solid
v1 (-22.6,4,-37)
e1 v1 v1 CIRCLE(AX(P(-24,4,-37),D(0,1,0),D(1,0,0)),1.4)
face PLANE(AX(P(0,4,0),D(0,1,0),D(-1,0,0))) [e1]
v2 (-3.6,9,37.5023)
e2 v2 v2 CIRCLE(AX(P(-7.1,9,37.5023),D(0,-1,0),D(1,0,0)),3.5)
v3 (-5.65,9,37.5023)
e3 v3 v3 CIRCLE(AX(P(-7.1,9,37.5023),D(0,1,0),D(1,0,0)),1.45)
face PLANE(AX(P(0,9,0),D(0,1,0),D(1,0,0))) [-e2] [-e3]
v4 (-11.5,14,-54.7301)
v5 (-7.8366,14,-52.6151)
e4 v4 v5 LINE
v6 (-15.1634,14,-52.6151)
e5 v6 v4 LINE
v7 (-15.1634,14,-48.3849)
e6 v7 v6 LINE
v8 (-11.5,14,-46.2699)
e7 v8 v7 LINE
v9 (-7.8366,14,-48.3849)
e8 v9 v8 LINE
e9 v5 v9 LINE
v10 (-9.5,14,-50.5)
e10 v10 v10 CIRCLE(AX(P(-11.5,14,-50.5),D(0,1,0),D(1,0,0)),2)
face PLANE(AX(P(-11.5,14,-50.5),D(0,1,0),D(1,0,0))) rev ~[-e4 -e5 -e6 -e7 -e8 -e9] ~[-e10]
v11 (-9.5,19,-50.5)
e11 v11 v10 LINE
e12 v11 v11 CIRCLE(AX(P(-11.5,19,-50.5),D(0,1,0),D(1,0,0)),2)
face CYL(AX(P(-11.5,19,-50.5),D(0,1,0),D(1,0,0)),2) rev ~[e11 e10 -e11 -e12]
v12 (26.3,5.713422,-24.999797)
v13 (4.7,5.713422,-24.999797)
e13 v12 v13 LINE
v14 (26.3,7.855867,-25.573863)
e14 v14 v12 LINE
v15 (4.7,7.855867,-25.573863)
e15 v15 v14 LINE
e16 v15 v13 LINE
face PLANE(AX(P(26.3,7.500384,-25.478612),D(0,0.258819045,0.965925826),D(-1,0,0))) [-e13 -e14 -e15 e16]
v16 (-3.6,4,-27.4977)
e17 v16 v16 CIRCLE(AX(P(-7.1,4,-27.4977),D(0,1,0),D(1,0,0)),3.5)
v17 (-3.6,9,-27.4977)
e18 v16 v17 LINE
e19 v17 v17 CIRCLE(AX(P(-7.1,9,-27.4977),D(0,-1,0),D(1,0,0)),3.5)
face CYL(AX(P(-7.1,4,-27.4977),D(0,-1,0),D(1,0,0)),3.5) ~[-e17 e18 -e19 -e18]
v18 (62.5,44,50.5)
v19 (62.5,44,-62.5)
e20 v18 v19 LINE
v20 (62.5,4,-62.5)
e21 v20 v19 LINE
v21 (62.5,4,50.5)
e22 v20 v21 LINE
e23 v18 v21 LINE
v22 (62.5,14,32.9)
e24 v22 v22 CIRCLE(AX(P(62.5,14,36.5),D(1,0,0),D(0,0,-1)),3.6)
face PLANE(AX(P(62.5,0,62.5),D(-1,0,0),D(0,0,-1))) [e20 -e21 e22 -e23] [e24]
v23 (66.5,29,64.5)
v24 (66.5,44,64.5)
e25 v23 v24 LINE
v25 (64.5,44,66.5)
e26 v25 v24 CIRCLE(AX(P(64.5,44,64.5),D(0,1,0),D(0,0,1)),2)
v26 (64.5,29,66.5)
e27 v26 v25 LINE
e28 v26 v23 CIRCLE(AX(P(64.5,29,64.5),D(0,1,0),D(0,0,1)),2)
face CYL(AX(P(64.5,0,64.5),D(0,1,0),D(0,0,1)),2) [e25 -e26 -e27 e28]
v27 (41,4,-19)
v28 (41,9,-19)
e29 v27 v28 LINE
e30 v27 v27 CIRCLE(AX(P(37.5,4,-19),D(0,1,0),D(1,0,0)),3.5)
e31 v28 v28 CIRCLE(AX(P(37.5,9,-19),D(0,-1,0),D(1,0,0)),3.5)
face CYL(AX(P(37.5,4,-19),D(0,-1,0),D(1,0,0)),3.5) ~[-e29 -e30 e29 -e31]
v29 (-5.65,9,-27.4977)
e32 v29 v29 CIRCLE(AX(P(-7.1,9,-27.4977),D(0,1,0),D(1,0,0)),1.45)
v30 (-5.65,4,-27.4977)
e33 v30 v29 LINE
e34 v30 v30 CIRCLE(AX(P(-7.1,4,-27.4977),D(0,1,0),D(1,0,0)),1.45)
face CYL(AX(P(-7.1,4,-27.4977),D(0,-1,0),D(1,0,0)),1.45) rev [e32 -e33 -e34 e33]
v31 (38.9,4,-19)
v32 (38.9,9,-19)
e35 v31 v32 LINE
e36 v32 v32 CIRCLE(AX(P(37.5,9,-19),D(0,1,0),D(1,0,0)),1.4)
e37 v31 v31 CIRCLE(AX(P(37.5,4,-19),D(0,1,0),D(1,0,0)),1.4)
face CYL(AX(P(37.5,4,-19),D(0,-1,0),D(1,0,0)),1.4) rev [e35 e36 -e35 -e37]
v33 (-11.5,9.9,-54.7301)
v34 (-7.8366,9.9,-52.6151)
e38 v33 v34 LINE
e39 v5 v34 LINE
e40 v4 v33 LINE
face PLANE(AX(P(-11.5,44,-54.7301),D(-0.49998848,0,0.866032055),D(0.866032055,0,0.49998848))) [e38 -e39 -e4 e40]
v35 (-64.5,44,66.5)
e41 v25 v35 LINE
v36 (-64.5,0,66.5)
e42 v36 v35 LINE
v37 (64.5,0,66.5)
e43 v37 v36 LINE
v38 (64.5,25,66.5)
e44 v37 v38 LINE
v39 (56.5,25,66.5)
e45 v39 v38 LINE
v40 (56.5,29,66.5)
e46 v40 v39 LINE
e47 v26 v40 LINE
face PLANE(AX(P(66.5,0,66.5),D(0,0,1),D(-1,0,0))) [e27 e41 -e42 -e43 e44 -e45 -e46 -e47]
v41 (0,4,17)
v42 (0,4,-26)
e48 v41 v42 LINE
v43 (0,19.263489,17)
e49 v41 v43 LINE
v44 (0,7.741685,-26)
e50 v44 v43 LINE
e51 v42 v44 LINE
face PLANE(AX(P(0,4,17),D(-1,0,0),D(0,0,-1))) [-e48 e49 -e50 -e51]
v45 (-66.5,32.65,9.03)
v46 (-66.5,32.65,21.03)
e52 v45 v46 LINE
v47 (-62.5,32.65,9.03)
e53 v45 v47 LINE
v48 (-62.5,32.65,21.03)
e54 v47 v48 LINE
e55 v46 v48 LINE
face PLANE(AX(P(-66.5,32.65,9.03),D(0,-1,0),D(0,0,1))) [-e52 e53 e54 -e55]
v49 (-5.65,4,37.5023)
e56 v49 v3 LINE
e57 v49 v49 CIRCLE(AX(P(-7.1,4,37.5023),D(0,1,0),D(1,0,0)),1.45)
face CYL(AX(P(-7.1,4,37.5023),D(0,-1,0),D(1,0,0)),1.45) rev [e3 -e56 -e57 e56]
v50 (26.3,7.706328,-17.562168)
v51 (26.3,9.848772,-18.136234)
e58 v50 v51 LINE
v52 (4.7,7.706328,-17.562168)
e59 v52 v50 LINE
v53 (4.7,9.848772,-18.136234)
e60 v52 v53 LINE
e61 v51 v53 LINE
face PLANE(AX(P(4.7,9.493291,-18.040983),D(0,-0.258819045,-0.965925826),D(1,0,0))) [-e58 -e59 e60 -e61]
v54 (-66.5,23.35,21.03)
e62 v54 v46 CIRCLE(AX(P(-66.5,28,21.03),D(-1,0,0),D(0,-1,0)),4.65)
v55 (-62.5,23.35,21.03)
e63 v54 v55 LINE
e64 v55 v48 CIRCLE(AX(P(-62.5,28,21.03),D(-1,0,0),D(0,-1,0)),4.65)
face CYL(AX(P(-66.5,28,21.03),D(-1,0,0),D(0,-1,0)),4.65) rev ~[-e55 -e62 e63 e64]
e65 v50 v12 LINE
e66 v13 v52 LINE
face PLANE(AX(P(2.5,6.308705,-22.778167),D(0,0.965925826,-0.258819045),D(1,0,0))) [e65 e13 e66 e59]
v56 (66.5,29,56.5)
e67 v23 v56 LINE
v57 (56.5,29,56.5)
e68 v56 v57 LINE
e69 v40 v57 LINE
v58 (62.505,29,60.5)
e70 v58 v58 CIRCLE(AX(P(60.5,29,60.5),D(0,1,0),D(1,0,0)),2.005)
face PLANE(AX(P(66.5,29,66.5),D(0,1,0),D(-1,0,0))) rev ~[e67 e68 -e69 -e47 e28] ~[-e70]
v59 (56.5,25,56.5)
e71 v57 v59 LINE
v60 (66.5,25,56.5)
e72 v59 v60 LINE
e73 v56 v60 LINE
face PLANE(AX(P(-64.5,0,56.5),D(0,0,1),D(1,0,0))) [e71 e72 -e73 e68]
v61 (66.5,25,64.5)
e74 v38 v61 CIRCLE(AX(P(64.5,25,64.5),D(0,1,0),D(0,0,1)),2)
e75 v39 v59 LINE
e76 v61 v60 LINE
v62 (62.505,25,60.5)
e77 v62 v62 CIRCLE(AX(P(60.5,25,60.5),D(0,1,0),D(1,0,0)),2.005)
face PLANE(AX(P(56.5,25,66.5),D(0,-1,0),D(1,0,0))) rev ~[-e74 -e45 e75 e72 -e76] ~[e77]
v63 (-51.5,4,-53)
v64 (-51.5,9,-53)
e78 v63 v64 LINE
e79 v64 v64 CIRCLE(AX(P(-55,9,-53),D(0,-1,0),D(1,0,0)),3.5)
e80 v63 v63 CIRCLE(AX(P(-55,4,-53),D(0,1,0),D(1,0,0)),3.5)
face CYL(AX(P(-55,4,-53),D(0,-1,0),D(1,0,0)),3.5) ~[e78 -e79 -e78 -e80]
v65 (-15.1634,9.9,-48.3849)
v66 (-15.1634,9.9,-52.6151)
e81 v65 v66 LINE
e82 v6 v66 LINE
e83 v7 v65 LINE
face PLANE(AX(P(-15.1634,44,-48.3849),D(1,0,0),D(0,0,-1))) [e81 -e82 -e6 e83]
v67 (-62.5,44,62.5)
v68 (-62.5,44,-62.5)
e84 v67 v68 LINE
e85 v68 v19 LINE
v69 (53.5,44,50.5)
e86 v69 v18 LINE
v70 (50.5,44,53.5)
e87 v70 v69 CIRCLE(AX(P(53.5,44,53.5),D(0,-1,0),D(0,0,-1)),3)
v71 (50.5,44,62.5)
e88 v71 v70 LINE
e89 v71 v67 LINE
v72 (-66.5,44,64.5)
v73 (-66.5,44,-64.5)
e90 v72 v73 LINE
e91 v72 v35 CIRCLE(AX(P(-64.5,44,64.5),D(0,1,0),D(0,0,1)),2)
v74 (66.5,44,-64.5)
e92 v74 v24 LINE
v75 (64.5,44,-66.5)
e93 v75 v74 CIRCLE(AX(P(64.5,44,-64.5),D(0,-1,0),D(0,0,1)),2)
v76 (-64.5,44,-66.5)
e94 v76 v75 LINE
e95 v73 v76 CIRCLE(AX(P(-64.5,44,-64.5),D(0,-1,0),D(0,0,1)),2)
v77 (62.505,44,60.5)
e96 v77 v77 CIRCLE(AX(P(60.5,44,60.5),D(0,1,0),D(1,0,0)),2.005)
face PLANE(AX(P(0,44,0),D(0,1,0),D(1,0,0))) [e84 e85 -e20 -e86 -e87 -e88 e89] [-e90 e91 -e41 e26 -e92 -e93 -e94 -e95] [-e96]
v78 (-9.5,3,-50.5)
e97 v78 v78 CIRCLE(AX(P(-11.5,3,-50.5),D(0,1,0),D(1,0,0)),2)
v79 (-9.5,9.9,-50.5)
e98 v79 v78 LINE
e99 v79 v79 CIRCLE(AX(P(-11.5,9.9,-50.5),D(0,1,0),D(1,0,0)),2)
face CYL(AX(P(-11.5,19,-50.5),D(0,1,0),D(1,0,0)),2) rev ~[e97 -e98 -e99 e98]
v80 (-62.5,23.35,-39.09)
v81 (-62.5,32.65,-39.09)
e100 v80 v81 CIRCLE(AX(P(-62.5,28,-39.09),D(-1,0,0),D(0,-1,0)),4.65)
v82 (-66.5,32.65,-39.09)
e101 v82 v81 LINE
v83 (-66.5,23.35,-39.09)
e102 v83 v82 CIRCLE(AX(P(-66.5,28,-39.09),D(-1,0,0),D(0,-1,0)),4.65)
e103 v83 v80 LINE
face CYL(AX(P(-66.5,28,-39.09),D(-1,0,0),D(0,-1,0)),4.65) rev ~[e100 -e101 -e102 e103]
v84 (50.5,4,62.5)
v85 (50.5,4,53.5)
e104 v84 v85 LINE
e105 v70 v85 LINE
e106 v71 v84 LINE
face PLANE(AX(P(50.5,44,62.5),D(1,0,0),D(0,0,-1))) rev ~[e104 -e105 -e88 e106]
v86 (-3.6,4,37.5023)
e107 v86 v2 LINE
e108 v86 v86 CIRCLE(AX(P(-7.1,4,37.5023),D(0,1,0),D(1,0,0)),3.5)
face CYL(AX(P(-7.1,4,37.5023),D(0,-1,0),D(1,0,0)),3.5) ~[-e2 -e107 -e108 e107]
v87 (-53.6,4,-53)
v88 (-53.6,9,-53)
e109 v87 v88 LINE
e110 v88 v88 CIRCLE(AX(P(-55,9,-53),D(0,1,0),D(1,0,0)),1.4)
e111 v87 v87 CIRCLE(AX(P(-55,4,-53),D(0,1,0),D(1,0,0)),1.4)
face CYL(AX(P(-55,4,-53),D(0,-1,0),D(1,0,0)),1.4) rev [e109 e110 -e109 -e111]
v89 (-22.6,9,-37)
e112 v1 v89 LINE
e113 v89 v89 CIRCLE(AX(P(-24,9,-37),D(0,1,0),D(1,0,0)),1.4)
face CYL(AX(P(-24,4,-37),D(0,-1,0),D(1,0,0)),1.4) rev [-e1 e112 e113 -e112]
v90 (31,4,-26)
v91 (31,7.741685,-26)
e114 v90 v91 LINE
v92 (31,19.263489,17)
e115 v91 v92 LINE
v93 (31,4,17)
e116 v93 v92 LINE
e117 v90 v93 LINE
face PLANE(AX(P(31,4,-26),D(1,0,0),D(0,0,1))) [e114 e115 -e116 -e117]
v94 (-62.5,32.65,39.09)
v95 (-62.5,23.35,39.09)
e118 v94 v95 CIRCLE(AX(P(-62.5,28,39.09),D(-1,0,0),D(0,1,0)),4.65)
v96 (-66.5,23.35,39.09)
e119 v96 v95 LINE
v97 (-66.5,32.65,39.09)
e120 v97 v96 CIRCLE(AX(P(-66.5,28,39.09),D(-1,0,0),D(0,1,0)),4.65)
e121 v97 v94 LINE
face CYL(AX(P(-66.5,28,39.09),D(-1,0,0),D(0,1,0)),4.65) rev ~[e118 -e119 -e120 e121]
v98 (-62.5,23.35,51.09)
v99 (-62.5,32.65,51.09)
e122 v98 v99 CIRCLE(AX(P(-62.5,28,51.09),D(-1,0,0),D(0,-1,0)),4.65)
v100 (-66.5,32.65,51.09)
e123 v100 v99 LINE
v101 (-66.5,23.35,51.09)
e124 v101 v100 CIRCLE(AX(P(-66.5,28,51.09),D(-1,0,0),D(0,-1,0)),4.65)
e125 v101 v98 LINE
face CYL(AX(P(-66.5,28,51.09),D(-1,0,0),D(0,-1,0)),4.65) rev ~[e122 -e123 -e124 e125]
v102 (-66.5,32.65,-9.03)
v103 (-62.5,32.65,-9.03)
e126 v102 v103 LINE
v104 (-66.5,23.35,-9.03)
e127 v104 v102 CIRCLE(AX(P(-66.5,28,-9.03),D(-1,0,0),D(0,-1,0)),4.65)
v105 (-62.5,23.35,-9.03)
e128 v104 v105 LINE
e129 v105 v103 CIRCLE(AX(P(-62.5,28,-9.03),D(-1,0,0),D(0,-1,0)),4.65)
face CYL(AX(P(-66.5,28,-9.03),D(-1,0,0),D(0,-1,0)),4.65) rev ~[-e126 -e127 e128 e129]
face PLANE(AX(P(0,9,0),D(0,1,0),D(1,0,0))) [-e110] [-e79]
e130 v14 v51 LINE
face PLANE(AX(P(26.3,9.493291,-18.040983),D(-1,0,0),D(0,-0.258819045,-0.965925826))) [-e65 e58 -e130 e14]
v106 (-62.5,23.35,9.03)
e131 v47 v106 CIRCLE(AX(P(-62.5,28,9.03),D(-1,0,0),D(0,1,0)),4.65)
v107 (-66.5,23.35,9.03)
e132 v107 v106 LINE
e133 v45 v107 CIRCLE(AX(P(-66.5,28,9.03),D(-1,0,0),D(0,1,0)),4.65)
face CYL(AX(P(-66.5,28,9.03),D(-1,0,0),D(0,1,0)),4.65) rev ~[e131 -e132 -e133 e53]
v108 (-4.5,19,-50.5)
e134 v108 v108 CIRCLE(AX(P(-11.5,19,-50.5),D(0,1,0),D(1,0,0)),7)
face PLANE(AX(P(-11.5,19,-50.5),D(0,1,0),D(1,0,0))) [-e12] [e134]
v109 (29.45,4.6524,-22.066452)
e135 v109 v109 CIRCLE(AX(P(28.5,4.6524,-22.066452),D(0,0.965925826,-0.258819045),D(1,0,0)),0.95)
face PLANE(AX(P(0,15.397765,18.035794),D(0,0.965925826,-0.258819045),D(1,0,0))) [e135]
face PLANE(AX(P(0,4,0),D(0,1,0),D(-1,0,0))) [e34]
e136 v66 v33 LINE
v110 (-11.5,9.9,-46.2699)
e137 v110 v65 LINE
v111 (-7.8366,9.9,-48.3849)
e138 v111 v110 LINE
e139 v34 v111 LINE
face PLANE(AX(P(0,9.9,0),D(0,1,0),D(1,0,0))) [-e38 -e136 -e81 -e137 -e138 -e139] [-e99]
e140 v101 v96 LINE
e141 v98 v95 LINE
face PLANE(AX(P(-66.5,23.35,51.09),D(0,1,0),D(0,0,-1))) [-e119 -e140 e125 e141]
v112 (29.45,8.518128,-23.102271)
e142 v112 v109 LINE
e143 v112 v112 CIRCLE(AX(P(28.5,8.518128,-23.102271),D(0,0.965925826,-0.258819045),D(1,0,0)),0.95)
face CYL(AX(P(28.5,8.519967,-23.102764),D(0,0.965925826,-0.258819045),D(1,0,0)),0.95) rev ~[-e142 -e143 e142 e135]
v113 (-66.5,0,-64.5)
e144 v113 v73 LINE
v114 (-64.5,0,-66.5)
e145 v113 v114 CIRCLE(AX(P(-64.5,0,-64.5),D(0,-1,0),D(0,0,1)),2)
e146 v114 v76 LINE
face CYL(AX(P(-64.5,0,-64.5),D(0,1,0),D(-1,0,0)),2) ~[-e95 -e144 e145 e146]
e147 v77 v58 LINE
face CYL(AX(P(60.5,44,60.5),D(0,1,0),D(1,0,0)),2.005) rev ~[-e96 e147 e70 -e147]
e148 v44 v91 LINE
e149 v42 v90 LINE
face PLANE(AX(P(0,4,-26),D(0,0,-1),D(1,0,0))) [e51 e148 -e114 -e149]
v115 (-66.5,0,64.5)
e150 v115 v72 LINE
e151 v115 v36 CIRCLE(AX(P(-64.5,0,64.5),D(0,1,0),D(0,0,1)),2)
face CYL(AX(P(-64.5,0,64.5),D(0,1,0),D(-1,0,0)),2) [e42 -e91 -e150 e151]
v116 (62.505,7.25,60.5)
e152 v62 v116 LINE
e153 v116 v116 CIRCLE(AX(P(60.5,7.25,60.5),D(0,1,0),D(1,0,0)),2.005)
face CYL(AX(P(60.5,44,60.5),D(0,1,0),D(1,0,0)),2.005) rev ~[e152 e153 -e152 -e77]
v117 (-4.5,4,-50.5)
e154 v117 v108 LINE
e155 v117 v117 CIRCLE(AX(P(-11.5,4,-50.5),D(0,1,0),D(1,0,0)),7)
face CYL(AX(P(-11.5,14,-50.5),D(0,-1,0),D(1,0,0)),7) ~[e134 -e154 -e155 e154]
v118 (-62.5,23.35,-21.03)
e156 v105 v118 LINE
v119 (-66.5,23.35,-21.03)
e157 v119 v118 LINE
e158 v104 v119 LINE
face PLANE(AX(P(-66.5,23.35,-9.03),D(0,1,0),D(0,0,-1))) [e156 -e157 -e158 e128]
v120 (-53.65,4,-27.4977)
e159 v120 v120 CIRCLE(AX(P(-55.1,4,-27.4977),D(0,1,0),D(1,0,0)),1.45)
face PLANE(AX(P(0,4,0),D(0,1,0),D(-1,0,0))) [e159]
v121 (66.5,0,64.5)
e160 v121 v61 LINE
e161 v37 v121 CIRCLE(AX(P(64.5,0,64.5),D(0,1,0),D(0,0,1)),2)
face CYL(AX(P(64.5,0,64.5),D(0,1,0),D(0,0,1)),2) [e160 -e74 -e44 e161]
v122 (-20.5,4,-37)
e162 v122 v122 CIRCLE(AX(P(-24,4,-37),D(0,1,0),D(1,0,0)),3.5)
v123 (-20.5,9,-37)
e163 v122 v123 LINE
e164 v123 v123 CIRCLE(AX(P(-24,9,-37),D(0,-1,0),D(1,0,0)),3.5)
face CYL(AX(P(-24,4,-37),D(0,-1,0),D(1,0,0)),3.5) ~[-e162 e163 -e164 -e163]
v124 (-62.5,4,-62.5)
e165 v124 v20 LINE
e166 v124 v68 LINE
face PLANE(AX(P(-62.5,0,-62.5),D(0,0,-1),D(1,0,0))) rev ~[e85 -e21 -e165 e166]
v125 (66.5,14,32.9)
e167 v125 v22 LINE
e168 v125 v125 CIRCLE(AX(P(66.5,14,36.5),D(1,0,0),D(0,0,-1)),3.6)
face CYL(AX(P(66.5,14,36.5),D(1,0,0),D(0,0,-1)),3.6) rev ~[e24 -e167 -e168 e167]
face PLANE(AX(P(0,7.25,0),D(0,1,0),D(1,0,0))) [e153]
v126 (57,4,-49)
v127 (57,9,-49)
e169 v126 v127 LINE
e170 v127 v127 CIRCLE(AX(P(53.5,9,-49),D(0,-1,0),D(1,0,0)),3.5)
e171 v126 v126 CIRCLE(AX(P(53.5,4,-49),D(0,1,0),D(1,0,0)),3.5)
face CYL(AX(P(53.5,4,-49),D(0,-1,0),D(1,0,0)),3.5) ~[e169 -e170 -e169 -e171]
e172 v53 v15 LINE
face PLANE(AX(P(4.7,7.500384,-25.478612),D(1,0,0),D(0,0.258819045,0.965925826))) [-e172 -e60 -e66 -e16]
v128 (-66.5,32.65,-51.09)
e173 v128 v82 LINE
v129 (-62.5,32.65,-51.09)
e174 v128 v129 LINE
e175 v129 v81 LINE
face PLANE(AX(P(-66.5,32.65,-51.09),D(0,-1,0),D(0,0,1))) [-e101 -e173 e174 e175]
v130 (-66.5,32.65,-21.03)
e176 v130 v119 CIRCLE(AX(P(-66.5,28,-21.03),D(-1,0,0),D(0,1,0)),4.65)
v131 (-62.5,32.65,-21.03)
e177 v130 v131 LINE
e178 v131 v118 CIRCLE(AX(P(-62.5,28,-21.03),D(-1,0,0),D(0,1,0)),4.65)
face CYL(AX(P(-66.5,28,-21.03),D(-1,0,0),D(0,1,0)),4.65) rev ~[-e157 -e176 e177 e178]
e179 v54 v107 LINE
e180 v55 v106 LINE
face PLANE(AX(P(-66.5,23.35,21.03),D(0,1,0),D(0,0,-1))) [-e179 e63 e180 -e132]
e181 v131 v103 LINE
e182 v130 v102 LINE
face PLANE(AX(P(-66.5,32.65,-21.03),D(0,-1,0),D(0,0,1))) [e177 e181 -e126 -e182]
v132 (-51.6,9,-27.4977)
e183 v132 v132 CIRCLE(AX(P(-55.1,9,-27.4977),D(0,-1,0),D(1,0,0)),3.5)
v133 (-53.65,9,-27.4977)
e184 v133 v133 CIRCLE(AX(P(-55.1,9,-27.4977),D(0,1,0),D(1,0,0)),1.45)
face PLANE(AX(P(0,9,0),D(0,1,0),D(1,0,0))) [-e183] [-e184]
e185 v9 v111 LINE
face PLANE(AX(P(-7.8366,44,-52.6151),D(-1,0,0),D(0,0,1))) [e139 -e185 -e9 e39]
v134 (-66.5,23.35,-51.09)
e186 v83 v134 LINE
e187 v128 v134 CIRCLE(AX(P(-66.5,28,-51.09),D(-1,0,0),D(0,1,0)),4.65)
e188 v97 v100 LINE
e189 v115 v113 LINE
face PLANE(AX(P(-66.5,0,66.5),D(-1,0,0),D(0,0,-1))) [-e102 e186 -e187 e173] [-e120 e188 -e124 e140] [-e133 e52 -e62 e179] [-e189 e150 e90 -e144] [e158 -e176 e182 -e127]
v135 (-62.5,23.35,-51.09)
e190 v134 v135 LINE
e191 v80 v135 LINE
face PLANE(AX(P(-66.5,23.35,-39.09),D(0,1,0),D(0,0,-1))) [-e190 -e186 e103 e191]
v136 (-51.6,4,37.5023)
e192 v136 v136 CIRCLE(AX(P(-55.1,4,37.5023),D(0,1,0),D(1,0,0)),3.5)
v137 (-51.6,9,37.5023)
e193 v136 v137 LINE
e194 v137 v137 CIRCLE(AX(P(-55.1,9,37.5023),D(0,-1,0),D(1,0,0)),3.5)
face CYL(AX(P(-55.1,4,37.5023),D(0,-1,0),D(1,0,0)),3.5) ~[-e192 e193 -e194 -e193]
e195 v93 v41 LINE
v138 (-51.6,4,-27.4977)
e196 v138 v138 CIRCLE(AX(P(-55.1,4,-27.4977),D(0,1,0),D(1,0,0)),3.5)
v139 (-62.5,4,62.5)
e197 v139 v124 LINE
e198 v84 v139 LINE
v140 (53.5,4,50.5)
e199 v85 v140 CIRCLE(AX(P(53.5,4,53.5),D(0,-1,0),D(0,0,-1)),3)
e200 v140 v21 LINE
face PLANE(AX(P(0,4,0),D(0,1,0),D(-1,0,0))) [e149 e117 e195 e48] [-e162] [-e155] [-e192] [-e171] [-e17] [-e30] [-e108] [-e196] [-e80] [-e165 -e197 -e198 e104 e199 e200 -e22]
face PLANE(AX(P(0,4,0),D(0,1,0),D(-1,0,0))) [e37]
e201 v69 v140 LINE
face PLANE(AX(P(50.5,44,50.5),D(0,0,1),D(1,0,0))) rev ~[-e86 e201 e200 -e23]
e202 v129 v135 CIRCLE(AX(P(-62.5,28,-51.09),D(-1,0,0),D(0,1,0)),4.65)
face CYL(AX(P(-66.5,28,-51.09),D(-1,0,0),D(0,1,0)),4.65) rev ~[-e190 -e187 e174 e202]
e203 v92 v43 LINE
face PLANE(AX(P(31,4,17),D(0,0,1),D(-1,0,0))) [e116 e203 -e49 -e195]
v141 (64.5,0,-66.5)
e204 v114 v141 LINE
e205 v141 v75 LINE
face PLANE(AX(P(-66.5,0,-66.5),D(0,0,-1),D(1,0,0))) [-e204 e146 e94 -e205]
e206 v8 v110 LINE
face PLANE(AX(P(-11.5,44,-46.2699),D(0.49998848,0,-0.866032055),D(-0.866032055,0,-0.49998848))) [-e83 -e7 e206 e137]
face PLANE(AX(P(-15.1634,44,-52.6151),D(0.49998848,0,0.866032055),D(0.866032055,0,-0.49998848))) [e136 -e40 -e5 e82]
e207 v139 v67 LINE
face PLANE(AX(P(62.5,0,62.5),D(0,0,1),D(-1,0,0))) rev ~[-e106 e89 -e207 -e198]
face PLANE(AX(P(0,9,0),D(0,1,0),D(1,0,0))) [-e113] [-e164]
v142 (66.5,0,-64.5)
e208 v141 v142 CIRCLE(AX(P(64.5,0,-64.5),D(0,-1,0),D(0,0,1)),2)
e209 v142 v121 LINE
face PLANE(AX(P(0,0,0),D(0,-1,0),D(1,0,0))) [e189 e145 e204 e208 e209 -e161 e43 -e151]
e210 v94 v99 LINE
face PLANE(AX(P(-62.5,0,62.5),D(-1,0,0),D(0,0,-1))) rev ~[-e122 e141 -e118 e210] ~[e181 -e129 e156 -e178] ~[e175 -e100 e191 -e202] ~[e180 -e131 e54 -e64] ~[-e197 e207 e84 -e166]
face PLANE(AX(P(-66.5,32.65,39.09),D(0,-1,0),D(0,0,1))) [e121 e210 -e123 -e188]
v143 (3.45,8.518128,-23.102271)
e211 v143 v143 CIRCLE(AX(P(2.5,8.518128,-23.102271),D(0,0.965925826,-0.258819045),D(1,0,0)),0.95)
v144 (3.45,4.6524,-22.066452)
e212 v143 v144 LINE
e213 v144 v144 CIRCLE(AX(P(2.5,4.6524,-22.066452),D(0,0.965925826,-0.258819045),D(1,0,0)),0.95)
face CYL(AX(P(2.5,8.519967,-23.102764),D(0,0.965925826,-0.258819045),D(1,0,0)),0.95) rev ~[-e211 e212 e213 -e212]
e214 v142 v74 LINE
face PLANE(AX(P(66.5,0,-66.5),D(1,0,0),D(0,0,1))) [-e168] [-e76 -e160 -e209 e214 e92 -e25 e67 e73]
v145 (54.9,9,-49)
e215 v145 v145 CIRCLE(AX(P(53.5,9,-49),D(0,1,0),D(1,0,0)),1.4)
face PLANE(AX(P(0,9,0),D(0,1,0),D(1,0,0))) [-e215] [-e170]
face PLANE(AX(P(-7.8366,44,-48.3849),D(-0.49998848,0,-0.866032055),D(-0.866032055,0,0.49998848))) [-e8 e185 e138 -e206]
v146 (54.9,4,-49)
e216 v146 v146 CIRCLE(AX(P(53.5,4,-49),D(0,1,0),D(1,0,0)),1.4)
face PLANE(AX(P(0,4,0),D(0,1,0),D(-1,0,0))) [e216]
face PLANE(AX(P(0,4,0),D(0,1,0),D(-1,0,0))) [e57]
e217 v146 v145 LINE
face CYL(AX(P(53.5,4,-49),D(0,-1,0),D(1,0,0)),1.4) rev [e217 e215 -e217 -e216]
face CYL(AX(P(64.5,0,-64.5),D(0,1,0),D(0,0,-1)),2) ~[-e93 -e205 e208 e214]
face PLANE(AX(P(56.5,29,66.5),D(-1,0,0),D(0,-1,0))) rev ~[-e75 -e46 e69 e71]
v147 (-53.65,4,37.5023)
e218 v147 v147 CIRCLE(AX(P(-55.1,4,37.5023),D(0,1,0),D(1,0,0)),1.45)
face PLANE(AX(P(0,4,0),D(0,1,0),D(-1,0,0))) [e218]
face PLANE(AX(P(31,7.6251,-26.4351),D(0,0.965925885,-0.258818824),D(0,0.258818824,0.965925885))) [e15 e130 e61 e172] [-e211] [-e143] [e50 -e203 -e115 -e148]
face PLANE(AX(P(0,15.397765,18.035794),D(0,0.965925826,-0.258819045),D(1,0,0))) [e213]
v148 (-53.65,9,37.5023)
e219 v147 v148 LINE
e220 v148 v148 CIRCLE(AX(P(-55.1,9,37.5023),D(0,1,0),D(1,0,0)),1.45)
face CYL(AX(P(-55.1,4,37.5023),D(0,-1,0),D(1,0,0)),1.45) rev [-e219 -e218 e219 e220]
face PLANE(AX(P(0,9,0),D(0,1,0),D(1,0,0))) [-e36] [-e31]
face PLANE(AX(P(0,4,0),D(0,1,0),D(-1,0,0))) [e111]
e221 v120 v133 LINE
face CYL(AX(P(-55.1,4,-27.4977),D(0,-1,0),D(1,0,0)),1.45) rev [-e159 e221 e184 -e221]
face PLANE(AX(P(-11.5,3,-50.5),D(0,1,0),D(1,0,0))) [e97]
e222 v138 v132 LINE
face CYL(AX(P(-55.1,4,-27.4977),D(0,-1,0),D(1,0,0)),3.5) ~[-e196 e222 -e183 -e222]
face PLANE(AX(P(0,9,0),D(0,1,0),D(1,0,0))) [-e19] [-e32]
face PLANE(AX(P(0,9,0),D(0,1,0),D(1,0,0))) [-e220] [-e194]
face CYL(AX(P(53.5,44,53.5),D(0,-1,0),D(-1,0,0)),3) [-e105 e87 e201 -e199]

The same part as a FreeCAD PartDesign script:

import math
import FreeCAD as App
import Part
import Sketcher
Q = App.Units.Quantity


def edges_at(feature, points):
    """Names of the edges that pass closest to the given points."""
    edges = feature.Shape.Edges
    near = lambda p: min(range(len(edges)), key=lambda i: edges[i].distToShape(Part.Vertex(*p))[0])
    return sorted({f"Edge{near(p) + 1}" for p in points})


def add_polygon(sketch, points):
    """Adds a closed chain of lines whose ends are joined by coincident constraints."""
    first, n = sketch.GeometryCount, len(points)
    for a, b in zip(points, points[1:] + points[:1]):
        sketch.addGeometry(Part.LineSegment(App.Vector(*a, 0), App.Vector(*b, 0)), False)
    for i in range(n):
        sketch.addConstraint(Sketcher.Constraint("Coincident", first + i, 2, first + (i + 1) % n, 1))

doc = App.newDocument("Part")
body = doc.addObject("PartDesign::Body", "Body")

# Sketch on XZ plane
sketch1 = body.newObject("Sketcher::SketchObject", "Sketch")
sketch1.AttachmentSupport = (doc.getObject("XZ_Plane"), [""])
sketch1.MapMode = "FlatFace"
add_polygon(sketch1, [(-62.5, 62.5), (62.5, 62.5), (62.5, -62.5), (-62.5, -62.5)])  # lines 0-3
sketch1.addConstraint([
    Sketcher.Constraint("Horizontal", 0),
    Sketcher.Constraint("Vertical", 1),
    Sketcher.Constraint("Horizontal", 2),
    Sketcher.Constraint("Vertical", 3),
    Sketcher.Constraint("Symmetric", 0, 2, 2, 2, -1, 1),
    Sketcher.Constraint("Equal", 2, 1),
    Sketcher.Constraint("DistanceX", 0, 1, 0, 2, 125.0),
])
pad1 = body.newObject("PartDesign::Pad", "Pad")
pad1.Profile = sketch1
pad1.Length = 4
pad1.Reversed = True

# Sketch on XZ plane
sketch2 = body.newObject("Sketcher::SketchObject", "Sketch001")
sketch2.AttachmentSupport = (doc.getObject("XZ_Plane"), [""])
sketch2.MapMode = "FlatFace"
sketch2.AttachmentOffset = App.Placement(App.Vector(0, 0, -4), App.Rotation())
sketch2.addGeometry([
    Part.Circle(App.Vector(-55, -53, 0), App.Vector(0, 0, 1), 3.5),  # 0
    Part.Circle(App.Vector(-55, -53, 0), App.Vector(0, 0, 1), 1.4),  # 1
    Part.Circle(App.Vector(-24, -37, 0), App.Vector(0, 0, 1), 3.5),  # 2
    Part.Circle(App.Vector(-24, -37, 0), App.Vector(0, 0, 1), 1.4),  # 3
    Part.Circle(App.Vector(-55.1, -27.4977, 0), App.Vector(0, 0, 1), 3.5),  # 4
    Part.Circle(App.Vector(-55.1, -27.4977, 0), App.Vector(0, 0, 1), 1.45),  # 5
    Part.Circle(App.Vector(-7.1, -27.4977, 0), App.Vector(0, 0, 1), 3.5),  # 6
    Part.Circle(App.Vector(-7.1, -27.4977, 0), App.Vector(0, 0, 1), 1.45),  # 7
    Part.Circle(App.Vector(-55.1, 37.5023, 0), App.Vector(0, 0, 1), 3.5),  # 8
    Part.Circle(App.Vector(-55.1, 37.5023, 0), App.Vector(0, 0, 1), 1.45),  # 9
    Part.Circle(App.Vector(-7.1, 37.5023, 0), App.Vector(0, 0, 1), 3.5),  # 10
    Part.Circle(App.Vector(-7.1, 37.5023, 0), App.Vector(0, 0, 1), 1.45),  # 11
    Part.Circle(App.Vector(53.5, -49, 0), App.Vector(0, 0, 1), 3.5),  # 12
    Part.Circle(App.Vector(53.5, -49, 0), App.Vector(0, 0, 1), 1.4),  # 13
    Part.Circle(App.Vector(37.5, -19, 0), App.Vector(0, 0, 1), 3.5),  # 14
    Part.Circle(App.Vector(37.5, -19, 0), App.Vector(0, 0, 1), 1.4),  # 15
], False)
sketch2.addConstraint([
    Sketcher.Constraint("Coincident", 1, 3, 0, 3),
    Sketcher.Constraint("Coincident", 3, 3, 2, 3),
    Sketcher.Constraint("Coincident", 5, 3, 4, 3),
    Sketcher.Constraint("Coincident", 7, 3, 6, 3),
    Sketcher.Constraint("Coincident", 9, 3, 8, 3),
    Sketcher.Constraint("Coincident", 11, 3, 10, 3),
    Sketcher.Constraint("Coincident", 13, 3, 12, 3),
    Sketcher.Constraint("Coincident", 15, 3, 14, 3),
    Sketcher.Constraint("Equal", 0, 2),
    Sketcher.Constraint("Equal", 1, 3),
    Sketcher.Constraint("Equal", 2, 4),
    Sketcher.Constraint("Equal", 4, 6),
    Sketcher.Constraint("Equal", 5, 7),
    Sketcher.Constraint("Equal", 6, 8),
    Sketcher.Constraint("Equal", 7, 9),
    Sketcher.Constraint("Equal", 8, 10),
    Sketcher.Constraint("Equal", 9, 11),
    Sketcher.Constraint("Equal", 10, 12),
    Sketcher.Constraint("Equal", 3, 13),
    Sketcher.Constraint("Equal", 12, 14),
    Sketcher.Constraint("Equal", 13, 15),
    Sketcher.Constraint("Horizontal", 5, 3, 6, 3),
    Sketcher.Constraint("Horizontal", 9, 3, 10, 3),
    Sketcher.Constraint("Vertical", 5, 3, 8, 3),
    Sketcher.Constraint("Vertical", 7, 3, 10, 3),
    Sketcher.Constraint("Diameter", 0, 7.0),
    Sketcher.Constraint("Diameter", 1, 2.8),
    Sketcher.Constraint("Diameter", 5, 2.9),
    Sketcher.Constraint("DistanceY", 0, 3, -1, 1, 53.0),
    Sketcher.Constraint("DistanceX", 4, 3, 6, 3, 48.0),
    Sketcher.Constraint("DistanceY", 4, 3, 8, 3, 65.0),
    Sketcher.Constraint("DistanceY", 12, 3, 2, 3, 12.0),
    Sketcher.Constraint("DistanceX", 0, 3, -1, 1, 55.0),
    Sketcher.Constraint("DistanceX", 2, 3, -1, 1, 24.0),
    Sketcher.Constraint("DistanceY", 2, 3, -1, 1, 37.0),
    Sketcher.Constraint("DistanceY", 14, 3, -1, 1, 19.0),
    Sketcher.Constraint("DistanceX", 14, 3, 12, 3, 16.0),
    Sketcher.Constraint("DistanceX", 4, 3, -1, 1, 55.1),
    Sketcher.Constraint("DistanceX", -1, 1, 12, 3, 53.5),
    Sketcher.Constraint("DistanceY", 4, 3, -1, 1, 27.4977),
])
pad2 = body.newObject("PartDesign::Pad", "Pad001")
pad2.Profile = sketch2
pad2.Length = 5
pad2.Reversed = True

# Sketch on XZ plane
sketch3 = body.newObject("Sketcher::SketchObject", "Sketch002")
sketch3.AttachmentSupport = (doc.getObject("XZ_Plane"), [""])
sketch3.MapMode = "FlatFace"
sketch3.AttachmentOffset = App.Placement(App.Vector(0, 0, -9), App.Rotation())
sketch3.addGeometry(Part.Circle(App.Vector(29.5, -45, 0), App.Vector(0, 0, 1), 1.45), False)
sketch3.addConstraint([
    Sketcher.Constraint("Diameter", 0, 2.9),
    Sketcher.Constraint("DistanceY", 0, 3, -1, 1, 45.0),
    Sketcher.Constraint("DistanceX", -1, 1, 0, 3, 29.5),
])
pocket1 = body.newObject("PartDesign::Pocket", "Pocket")
pocket1.Profile = sketch3
pocket1.Length = 5
pocket1.Reversed = True

# Sketch on XZ plane
sketch4 = body.newObject("Sketcher::SketchObject", "Sketch003")
sketch4.AttachmentSupport = (doc.getObject("XZ_Plane"), [""])
sketch4.MapMode = "FlatFace"
sketch4.AttachmentOffset = App.Placement(App.Vector(0, 0, -4), App.Rotation())
add_polygon(sketch4, [(31, -26), (0, -26), (0, 17), (31, 17)])  # lines 0-3
sketch4.addConstraint([
    Sketcher.Constraint("Horizontal", 0),
    Sketcher.Constraint("Vertical", 1),
    Sketcher.Constraint("Horizontal", 2),
    Sketcher.Constraint("Vertical", 3),
    Sketcher.Constraint("PointOnObject", 0, 2, -2),
    Sketcher.Constraint("DistanceY", 1, 1, 1, 2, 43.0),
    Sketcher.Constraint("DistanceX", 0, 2, 0, 1, 31.0),
    Sketcher.Constraint("DistanceY", 0, 2, -1, 1, 26.0),
])
pad3 = body.newObject("PartDesign::Pad", "Pad002")
pad3.Profile = sketch4
pad3.Length = 24
pad3.Reversed = True

# Sketch on YZ plane
sketch5 = body.newObject("Sketcher::SketchObject", "Sketch004")
sketch5.AttachmentSupport = (doc.getObject("YZ_Plane"), [""])
sketch5.MapMode = "FlatFace"
sketch5.AttachmentOffset = App.Placement(App.Vector(0, 0, 31), App.Rotation())
add_polygon(sketch5, [(29.6247, 55.6686), (7.6251, -26.4351), (31.2402, -26.4351)])  # lines 0-2
sketch5.addConstraint([
    Sketcher.Constraint("Horizontal", 1),
    Sketcher.Constraint("Distance", 0, 85.0),
    Sketcher.Constraint("Angle", 0, Q("-105 deg")),
    Sketcher.Constraint("DistanceX", 1, 1, 1, 2, 23.615),
    Sketcher.Constraint("DistanceX", -1, 1, 0, 2, 7.625),
    Sketcher.Constraint("DistanceY", 0, 2, -1, 1, 26.435),
])
pocket2 = body.newObject("PartDesign::Pocket", "Pocket001")
pocket2.Profile = sketch5
pocket2.Length = 31

# Sketch on an angled plane
sketch6 = body.newObject("Sketcher::SketchObject", "Sketch005")
sketch6.Placement = App.Placement(App.Vector(0, 19.2634, 17), App.Rotation(App.Vector(1, 0, 0), App.Vector(0, -0.258819045, -0.965925826), App.Vector(0, 0.965925826, -0.258819045), "ZXY"))
sketch6.addGeometry([
    Part.Circle(App.Vector(2.5, 41.5169, 0), App.Vector(0, 0, 1), 0.95),
    Part.Circle(App.Vector(28.5, 41.5169, 0), App.Vector(0, 0, 1), 0.95),
], False)
sketch6.addConstraint([
    Sketcher.Constraint("Equal", 0, 1),
    Sketcher.Constraint("Horizontal", 0, 3, 1, 3),
    Sketcher.Constraint("Diameter", 0, 1.9),
    Sketcher.Constraint("DistanceX", -1, 1, 0, 3, 2.5),
    Sketcher.Constraint("DistanceX", 0, 3, 1, 3, 26.0),
    Sketcher.Constraint("DistanceY", -1, 1, 0, 3, 41.517),
])
pocket3 = body.newObject("PartDesign::Pocket", "Pocket002")
pocket3.Profile = sketch6
pocket3.Length = 4

# Sketch on an angled plane
sketch7 = body.newObject("Sketcher::SketchObject", "Sketch006")
sketch7.Placement = App.Placement(App.Vector(2.5, 8.0976, -23.2575), App.Rotation(App.Vector(1, 0, 0), App.Vector(0, -0.258819045, -0.965925826), App.Vector(0, 0.965925826, -0.258819045), "ZXY"))
add_polygon(sketch7, [(2.2, 2.3), (2.2, -5.4), (23.8, -5.4), (23.8, 2.3)])  # lines 0-3
sketch7.addConstraint([
    Sketcher.Constraint("Vertical", 0),
    Sketcher.Constraint("Horizontal", 1),
    Sketcher.Constraint("Vertical", 2),
    Sketcher.Constraint("Horizontal", 3),
    Sketcher.Constraint("DistanceY", 0, 2, 0, 1, 7.7),
    Sketcher.Constraint("DistanceX", 1, 1, 1, 2, 21.6),
    Sketcher.Constraint("DistanceX", -1, 1, 0, 2, 2.2),
    Sketcher.Constraint("DistanceY", 0, 2, -1, 1, 5.4),
])
pocket4 = body.newObject("PartDesign::Pocket", "Pocket003")
pocket4.Profile = sketch7
pocket4.Length = 3.7
pocket4.Midplane = True

# Sketch on XZ plane
sketch8 = body.newObject("Sketcher::SketchObject", "Sketch007")
sketch8.AttachmentSupport = (doc.getObject("XZ_Plane"), [""])
sketch8.MapMode = "FlatFace"
add_polygon(sketch8, [(-66.5, 66.5), (-66.5, -66.5), (66.5, -66.5), (66.5, 66.5)])  # lines 0-3
add_polygon(sketch8, [(-62.5, 62.5), (62.5, 62.5), (62.5, -62.5), (-62.5, -62.5)])  # lines 4-7
sketch8.addConstraint([
    Sketcher.Constraint("Vertical", 0),
    Sketcher.Constraint("Horizontal", 1),
    Sketcher.Constraint("Vertical", 2),
    Sketcher.Constraint("Horizontal", 3),
    Sketcher.Constraint("Horizontal", 4),
    Sketcher.Constraint("Vertical", 5),
    Sketcher.Constraint("Horizontal", 6),
    Sketcher.Constraint("Vertical", 7),
    Sketcher.Constraint("Symmetric", 0, 2, 2, 2, -1, 1),
    Sketcher.Constraint("Symmetric", 4, 2, 6, 2, -1, 1),
    Sketcher.Constraint("Equal", 3, 0),
    Sketcher.Constraint("Equal", 6, 5),
    Sketcher.Constraint("DistanceX", 1, 1, 1, 2, 133.0),
    Sketcher.Constraint("DistanceX", 4, 1, 4, 2, 125.0),
])
pad4 = body.newObject("PartDesign::Pad", "Pad003")
pad4.Profile = sketch8
pad4.Length = 44
pad4.Reversed = True
doc.recompute()

fillet = body.newObject("PartDesign::Fillet", "Fillet")
fillet.Base = (pad4, edges_at(pad4, [
    (-66.5, 22, 66.5),
    (66.5, 22, 66.5),
    (66.5, 22, -66.5),
    (-66.5, 22, -66.5),
]))
fillet.Radius = 2

# Sketch on YZ plane
sketch9 = body.newObject("Sketcher::SketchObject", "Sketch008")
sketch9.AttachmentSupport = (doc.getObject("YZ_Plane"), [""])
sketch9.MapMode = "FlatFace"
sketch9.AttachmentOffset = App.Placement(App.Vector(0, 0, -66.5), App.Rotation())
sketch9.addGeometry([
    Part.LineSegment(App.Vector(32.65, -39.09, 0), App.Vector(32.65, -51.09, 0)),  # 0
    Part.ArcOfCircle(Part.Circle(App.Vector(28, -51.09, 0), App.Vector(0, 0, 1), 4.65), math.radians(180), math.radians(360)),  # 1
    Part.LineSegment(App.Vector(23.35, -51.09, 0), App.Vector(23.35, -39.09, 0)),  # 2
    Part.ArcOfCircle(Part.Circle(App.Vector(28, -39.09, 0), App.Vector(0, 0, 1), 4.65), math.radians(0), math.radians(180)),  # 3
    Part.LineSegment(App.Vector(32.65, -9.03, 0), App.Vector(32.65, -21.03, 0)),  # 4
    Part.ArcOfCircle(Part.Circle(App.Vector(28, -21.03, 0), App.Vector(0, 0, 1), 4.65), math.radians(180), math.radians(360)),  # 5
    Part.LineSegment(App.Vector(23.35, -21.03, 0), App.Vector(23.35, -9.03, 0)),  # 6
    Part.ArcOfCircle(Part.Circle(App.Vector(28, -9.03, 0), App.Vector(0, 0, 1), 4.65), math.radians(0), math.radians(180)),  # 7
    Part.LineSegment(App.Vector(32.65, 21.03, 0), App.Vector(32.65, 9.03, 0)),  # 8
    Part.ArcOfCircle(Part.Circle(App.Vector(28, 9.03, 0), App.Vector(0, 0, 1), 4.65), math.radians(180), math.radians(360)),  # 9
    Part.LineSegment(App.Vector(23.35, 9.03, 0), App.Vector(23.35, 21.03, 0)),  # 10
    Part.ArcOfCircle(Part.Circle(App.Vector(28, 21.03, 0), App.Vector(0, 0, 1), 4.65), math.radians(0), math.radians(180)),  # 11
    Part.LineSegment(App.Vector(32.65, 51.09, 0), App.Vector(32.65, 39.09, 0)),  # 12
    Part.ArcOfCircle(Part.Circle(App.Vector(28, 39.09, 0), App.Vector(0, 0, 1), 4.65), math.radians(180), math.radians(360)),  # 13
    Part.LineSegment(App.Vector(23.35, 39.09, 0), App.Vector(23.35, 51.09, 0)),  # 14
    Part.ArcOfCircle(Part.Circle(App.Vector(28, 51.09, 0), App.Vector(0, 0, 1), 4.65), math.radians(0), math.radians(180)),  # 15
], False)
sketch9.addConstraint([
    Sketcher.Constraint("Tangent", 0, 2, 1, 2),
    Sketcher.Constraint("Tangent", 1, 1, 2, 1),
    Sketcher.Constraint("Tangent", 2, 2, 3, 2),
    Sketcher.Constraint("Tangent", 3, 1, 0, 1),
    Sketcher.Constraint("Tangent", 4, 2, 5, 2),
    Sketcher.Constraint("Tangent", 5, 1, 6, 1),
    Sketcher.Constraint("Tangent", 6, 2, 7, 2),
    Sketcher.Constraint("Tangent", 7, 1, 4, 1),
    Sketcher.Constraint("Tangent", 8, 2, 9, 2),
    Sketcher.Constraint("Tangent", 9, 1, 10, 1),
    Sketcher.Constraint("Tangent", 10, 2, 11, 2),
    Sketcher.Constraint("Tangent", 11, 1, 8, 1),
    Sketcher.Constraint("Tangent", 12, 2, 13, 2),
    Sketcher.Constraint("Tangent", 13, 1, 14, 1),
    Sketcher.Constraint("Tangent", 14, 2, 15, 2),
    Sketcher.Constraint("Tangent", 15, 1, 12, 1),
    Sketcher.Constraint("Vertical", 0),
    Sketcher.Constraint("Vertical", 2),
    Sketcher.Constraint("Vertical", 4),
    Sketcher.Constraint("Vertical", 6),
    Sketcher.Constraint("Vertical", 8),
    Sketcher.Constraint("Vertical", 10),
    Sketcher.Constraint("Vertical", 12),
    Sketcher.Constraint("Vertical", 14),
    Sketcher.Constraint("Equal", 3, 5),
    Sketcher.Constraint("Equal", 7, 9),
    Sketcher.Constraint("Equal", 11, 13),
    Sketcher.Constraint("Symmetric", 7, 3, 9, 3, -1),
    Sketcher.Constraint("Symmetric", 3, 3, 13, 3, -1),
    Sketcher.Constraint("Vertical", 3, 3, 5, 3),
    Sketcher.Constraint("Equal", 2, 4),
    Sketcher.Constraint("Equal", 6, 8),
    Sketcher.Constraint("Equal", 10, 12),
    Sketcher.Constraint("DistanceY", 0, 2, 0, 1, 12.0),
    Sketcher.Constraint("Radius", 1, 4.65),
    Sketcher.Constraint("DistanceY", 3, 3, 5, 3, 18.06),
    Sketcher.Constraint("DistanceY", 7, 3, 9, 3, 18.06),
    Sketcher.Constraint("DistanceX", -1, 1, 1, 3, 28.0),
])
pocket5 = body.newObject("PartDesign::Pocket", "Pocket004")
pocket5.Profile = sketch9
pocket5.Length = 5
pocket5.Reversed = True

# Sketch on XZ plane
sketch10 = body.newObject("Sketcher::SketchObject", "Sketch009")
sketch10.AttachmentSupport = (doc.getObject("XZ_Plane"), [""])
sketch10.MapMode = "FlatFace"
sketch10.AttachmentOffset = App.Placement(App.Vector(0, 0, -44), App.Rotation())
sketch10.addGeometry(Part.Circle(App.Vector(-11.5, -50.5, 0), App.Vector(0, 0, 1), 7), False)  # 0
add_polygon(sketch10, [(-15.1634, -52.6151), (-11.5, -54.7301), (-7.8366, -52.6151), (-7.8366, -48.3849), (-11.5, -46.2699), (-15.1634, -48.3849)])  # lines 1-6
sketch10.addConstraint([
    Sketcher.Constraint("Vertical", 3),
    Sketcher.Constraint("Vertical", 6),
    Sketcher.Constraint("Parallel", 1, 4),
    Sketcher.Constraint("Parallel", 2, 5),
    Sketcher.Constraint("Horizontal", 3, 2, 5, 2),
    Sketcher.Constraint("Horizontal", 2, 2, 6, 2),
    Sketcher.Constraint("Vertical", 0, 3, 1, 2),
    Sketcher.Constraint("Vertical", 1, 2, 4, 2),
    Sketcher.Constraint("Diameter", 0, 14.0),
    Sketcher.Constraint("Angle", 1, Q("-29.9992 deg")),
    Sketcher.Constraint("DistanceX", 0, 3, -1, 1, 11.5),
    Sketcher.Constraint("DistanceY", 0, 3, -1, 1, 50.5),
    Sketcher.Constraint("Distance", 1, 4.23),
    Sketcher.Constraint("DistanceY", 1, 2, -1, 1, 54.73),
    Sketcher.Constraint("DistanceY", 4, 2, -1, 1, 46.27),
])
pad5 = body.newObject("PartDesign::Pad", "Pad004")
pad5.Profile = sketch10
pad5.Length = 40

# Sketch on XY plane
sketch11 = body.newObject("Sketcher::SketchObject", "Sketch010")
sketch11.AttachmentSupport = (doc.getObject("XY_Plane"), [""])
sketch11.MapMode = "FlatFace"
sketch11.AttachmentOffset = App.Placement(App.Vector(0, 0, -62.5), App.Rotation())
add_polygon(sketch11, [(-1.9622, 14), (-1.9622, 44), (-18.9622, 44), (-18.9622, 14)])  # lines 0-3
sketch11.addConstraint([
    Sketcher.Constraint("Vertical", 0),
    Sketcher.Constraint("Horizontal", 1),
    Sketcher.Constraint("Vertical", 2),
    Sketcher.Constraint("Horizontal", 3),
    Sketcher.Constraint("DistanceX", 1, 2, 1, 1, 17.0),
    Sketcher.Constraint("DistanceY", 0, 1, 0, 2, 30.0),
    Sketcher.Constraint("DistanceY", -1, 1, 0, 2, 44.0),
    Sketcher.Constraint("DistanceX", 0, 2, -1, 1, 1.9622),
])
pocket6 = body.newObject("PartDesign::Pocket", "Pocket005")
pocket6.Profile = sketch11
pocket6.Length = 20.7
pocket6.Reversed = True

# Sketch on XZ plane
sketch12 = body.newObject("Sketcher::SketchObject", "Sketch011")
sketch12.AttachmentSupport = (doc.getObject("XZ_Plane"), [""])
sketch12.MapMode = "FlatFace"
sketch12.AttachmentOffset = App.Placement(App.Vector(0, 0, -4), App.Rotation())
add_polygon(sketch12, [(-7.8366, -52.6151), (-11.5, -54.7301), (-15.1634, -52.6151), (-15.1634, -48.3849), (-11.5, -46.2699), (-7.8366, -48.3849)])  # lines 0-5
sketch12.addConstraint([
    Sketcher.Constraint("Vertical", 2),
    Sketcher.Constraint("Vertical", 5),
    Sketcher.Constraint("Parallel", 0, 3),
    Sketcher.Constraint("Parallel", 1, 4),
    Sketcher.Constraint("Horizontal", 2, 2, 4, 2),
    Sketcher.Constraint("Horizontal", 1, 2, 5, 2),
    Sketcher.Constraint("Vertical", 0, 2, 3, 2),
    Sketcher.Constraint("Angle", 0, Q("-150.0008 deg")),
    Sketcher.Constraint("DistanceX", 0, 2, -1, 1, 11.5),
    Sketcher.Constraint("Distance", 0, 4.23),
    Sketcher.Constraint("DistanceY", 0, 2, -1, 1, 54.73),
    Sketcher.Constraint("DistanceY", 3, 2, -1, 1, 46.27),
])
pad6 = body.newObject("PartDesign::Pad", "Pad005")
pad6.Profile = sketch12
pad6.Length = 5.9
pad6.Reversed = True

# Sketch on XZ plane
sketch13 = body.newObject("Sketcher::SketchObject", "Sketch012")
sketch13.AttachmentSupport = (doc.getObject("XZ_Plane"), [""])
sketch13.MapMode = "FlatFace"
sketch13.AttachmentOffset = App.Placement(App.Vector(0, 0, -14), App.Rotation())
sketch13.addGeometry(Part.Circle(App.Vector(-11.5, -50.5, 0), App.Vector(0, 0, 1), 7), False)
sketch13.addConstraint([
    Sketcher.Constraint("Diameter", 0, 14.0),
    Sketcher.Constraint("DistanceX", 0, 3, -1, 1, 11.5),
    Sketcher.Constraint("DistanceY", 0, 3, -1, 1, 50.5),
])
pad7 = body.newObject("PartDesign::Pad", "Pad006")
pad7.Profile = sketch13
pad7.Length = 5
pad7.Reversed = True

# Sketch on XZ plane
sketch14 = body.newObject("Sketcher::SketchObject", "Sketch013")
sketch14.AttachmentSupport = (doc.getObject("XZ_Plane"), [""])
sketch14.MapMode = "FlatFace"
sketch14.AttachmentOffset = App.Placement(App.Vector(0, 0, -19), App.Rotation())
sketch14.addGeometry(Part.Circle(App.Vector(-11.5, -50.5, 0), App.Vector(0, 0, 1), 2), False)
sketch14.addConstraint([
    Sketcher.Constraint("Diameter", 0, 4.0),
    Sketcher.Constraint("DistanceX", 0, 3, -1, 1, 11.5),
    Sketcher.Constraint("DistanceY", 0, 3, -1, 1, 50.5),
])
pocket7 = body.newObject("PartDesign::Pocket", "Pocket006")
pocket7.Profile = sketch14
pocket7.Length = 16
pocket7.Reversed = True

# Sketch on XZ plane
sketch15 = body.newObject("Sketcher::SketchObject", "Sketch014")
sketch15.AttachmentSupport = (doc.getObject("XZ_Plane"), [""])
sketch15.MapMode = "FlatFace"
sketch15.AttachmentOffset = App.Placement(App.Vector(0, 0, -44), App.Rotation())
add_polygon(sketch15, [(50.5, 50.5), (50.5, 62.5), (62.5, 62.5), (62.5, 50.5)])  # lines 0-3
sketch15.addConstraint([
    Sketcher.Constraint("Vertical", 0),
    Sketcher.Constraint("Horizontal", 1),
    Sketcher.Constraint("Vertical", 2),
    Sketcher.Constraint("Horizontal", 3),
    Sketcher.Constraint("Equal", 3, 0),
    Sketcher.Constraint("DistanceX", 1, 1, 1, 2, 12.0),
    Sketcher.Constraint("DistanceX", -1, 1, 0, 2, 50.5),
    Sketcher.Constraint("DistanceY", -1, 1, 0, 2, 62.5),
])
pad8 = body.newObject("PartDesign::Pad", "Pad007")
pad8.Profile = sketch15
pad8.Length = 40
doc.recompute()

fillet2 = body.newObject("PartDesign::Fillet", "Fillet001")
fillet2.Base = (pad8, edges_at(pad8, [(50.5, 24, 50.5)]))
fillet2.Radius = 3

# Sketch on XY plane
sketch16 = body.newObject("Sketcher::SketchObject", "Sketch015")
sketch16.AttachmentSupport = (doc.getObject("XY_Plane"), [""])
sketch16.MapMode = "FlatFace"
sketch16.AttachmentOffset = App.Placement(App.Vector(0, 0, 66.5), App.Rotation())
add_polygon(sketch16, [(66.5, 25), (66.5, 29), (56.5, 29), (56.5, 25)])  # lines 0-3
sketch16.addConstraint([
    Sketcher.Constraint("Vertical", 0),
    Sketcher.Constraint("Horizontal", 1),
    Sketcher.Constraint("Vertical", 2),
    Sketcher.Constraint("Horizontal", 3),
    Sketcher.Constraint("DistanceX", 1, 2, 1, 1, 10.0),
    Sketcher.Constraint("DistanceY", 0, 1, 0, 2, 4.0),
    Sketcher.Constraint("DistanceY", -1, 1, 0, 2, 29.0),
    Sketcher.Constraint("DistanceX", -1, 1, 0, 2, 66.5),
])
pocket8 = body.newObject("PartDesign::Pocket", "Pocket007")
pocket8.Profile = sketch16
pocket8.Length = 10

# Sketch on XZ plane
sketch17 = body.newObject("Sketcher::SketchObject", "Sketch016")
sketch17.AttachmentSupport = (doc.getObject("XZ_Plane"), [""])
sketch17.MapMode = "FlatFace"
sketch17.AttachmentOffset = App.Placement(App.Vector(0, 0, -44), App.Rotation())
sketch17.addGeometry(Part.Circle(App.Vector(60.5, 60.5, 0), App.Vector(0, 0, 1), 2.005), False)
sketch17.addConstraint([
    Sketcher.Constraint("Diameter", 0, 4.01),
    Sketcher.Constraint("DistanceX", -1, 1, 0, 3, 60.5),
    Sketcher.Constraint("DistanceY", -1, 1, 0, 3, 60.5),
])
pocket9 = body.newObject("PartDesign::Pocket", "Pocket008")
pocket9.Profile = sketch17
pocket9.Length = 36.75
pocket9.Reversed = True

# Sketch on YZ plane
sketch18 = body.newObject("Sketcher::SketchObject", "Sketch017")
sketch18.AttachmentSupport = (doc.getObject("YZ_Plane"), [""])
sketch18.MapMode = "FlatFace"
sketch18.AttachmentOffset = App.Placement(App.Vector(0, 0, 66.5), App.Rotation())
sketch18.addGeometry(Part.Circle(App.Vector(14, 36.5, 0), App.Vector(0, 0, 1), 3.6), False)
sketch18.addConstraint([
    Sketcher.Constraint("Diameter", 0, 7.2),
    Sketcher.Constraint("DistanceX", -1, 1, 0, 3, 14.0),
    Sketcher.Constraint("DistanceY", -1, 1, 0, 3, 36.5),
])
pocket10 = body.newObject("PartDesign::Pocket", "Pocket009")
pocket10.Profile = sketch18
pocket10.Length = 5

doc.recompute()
